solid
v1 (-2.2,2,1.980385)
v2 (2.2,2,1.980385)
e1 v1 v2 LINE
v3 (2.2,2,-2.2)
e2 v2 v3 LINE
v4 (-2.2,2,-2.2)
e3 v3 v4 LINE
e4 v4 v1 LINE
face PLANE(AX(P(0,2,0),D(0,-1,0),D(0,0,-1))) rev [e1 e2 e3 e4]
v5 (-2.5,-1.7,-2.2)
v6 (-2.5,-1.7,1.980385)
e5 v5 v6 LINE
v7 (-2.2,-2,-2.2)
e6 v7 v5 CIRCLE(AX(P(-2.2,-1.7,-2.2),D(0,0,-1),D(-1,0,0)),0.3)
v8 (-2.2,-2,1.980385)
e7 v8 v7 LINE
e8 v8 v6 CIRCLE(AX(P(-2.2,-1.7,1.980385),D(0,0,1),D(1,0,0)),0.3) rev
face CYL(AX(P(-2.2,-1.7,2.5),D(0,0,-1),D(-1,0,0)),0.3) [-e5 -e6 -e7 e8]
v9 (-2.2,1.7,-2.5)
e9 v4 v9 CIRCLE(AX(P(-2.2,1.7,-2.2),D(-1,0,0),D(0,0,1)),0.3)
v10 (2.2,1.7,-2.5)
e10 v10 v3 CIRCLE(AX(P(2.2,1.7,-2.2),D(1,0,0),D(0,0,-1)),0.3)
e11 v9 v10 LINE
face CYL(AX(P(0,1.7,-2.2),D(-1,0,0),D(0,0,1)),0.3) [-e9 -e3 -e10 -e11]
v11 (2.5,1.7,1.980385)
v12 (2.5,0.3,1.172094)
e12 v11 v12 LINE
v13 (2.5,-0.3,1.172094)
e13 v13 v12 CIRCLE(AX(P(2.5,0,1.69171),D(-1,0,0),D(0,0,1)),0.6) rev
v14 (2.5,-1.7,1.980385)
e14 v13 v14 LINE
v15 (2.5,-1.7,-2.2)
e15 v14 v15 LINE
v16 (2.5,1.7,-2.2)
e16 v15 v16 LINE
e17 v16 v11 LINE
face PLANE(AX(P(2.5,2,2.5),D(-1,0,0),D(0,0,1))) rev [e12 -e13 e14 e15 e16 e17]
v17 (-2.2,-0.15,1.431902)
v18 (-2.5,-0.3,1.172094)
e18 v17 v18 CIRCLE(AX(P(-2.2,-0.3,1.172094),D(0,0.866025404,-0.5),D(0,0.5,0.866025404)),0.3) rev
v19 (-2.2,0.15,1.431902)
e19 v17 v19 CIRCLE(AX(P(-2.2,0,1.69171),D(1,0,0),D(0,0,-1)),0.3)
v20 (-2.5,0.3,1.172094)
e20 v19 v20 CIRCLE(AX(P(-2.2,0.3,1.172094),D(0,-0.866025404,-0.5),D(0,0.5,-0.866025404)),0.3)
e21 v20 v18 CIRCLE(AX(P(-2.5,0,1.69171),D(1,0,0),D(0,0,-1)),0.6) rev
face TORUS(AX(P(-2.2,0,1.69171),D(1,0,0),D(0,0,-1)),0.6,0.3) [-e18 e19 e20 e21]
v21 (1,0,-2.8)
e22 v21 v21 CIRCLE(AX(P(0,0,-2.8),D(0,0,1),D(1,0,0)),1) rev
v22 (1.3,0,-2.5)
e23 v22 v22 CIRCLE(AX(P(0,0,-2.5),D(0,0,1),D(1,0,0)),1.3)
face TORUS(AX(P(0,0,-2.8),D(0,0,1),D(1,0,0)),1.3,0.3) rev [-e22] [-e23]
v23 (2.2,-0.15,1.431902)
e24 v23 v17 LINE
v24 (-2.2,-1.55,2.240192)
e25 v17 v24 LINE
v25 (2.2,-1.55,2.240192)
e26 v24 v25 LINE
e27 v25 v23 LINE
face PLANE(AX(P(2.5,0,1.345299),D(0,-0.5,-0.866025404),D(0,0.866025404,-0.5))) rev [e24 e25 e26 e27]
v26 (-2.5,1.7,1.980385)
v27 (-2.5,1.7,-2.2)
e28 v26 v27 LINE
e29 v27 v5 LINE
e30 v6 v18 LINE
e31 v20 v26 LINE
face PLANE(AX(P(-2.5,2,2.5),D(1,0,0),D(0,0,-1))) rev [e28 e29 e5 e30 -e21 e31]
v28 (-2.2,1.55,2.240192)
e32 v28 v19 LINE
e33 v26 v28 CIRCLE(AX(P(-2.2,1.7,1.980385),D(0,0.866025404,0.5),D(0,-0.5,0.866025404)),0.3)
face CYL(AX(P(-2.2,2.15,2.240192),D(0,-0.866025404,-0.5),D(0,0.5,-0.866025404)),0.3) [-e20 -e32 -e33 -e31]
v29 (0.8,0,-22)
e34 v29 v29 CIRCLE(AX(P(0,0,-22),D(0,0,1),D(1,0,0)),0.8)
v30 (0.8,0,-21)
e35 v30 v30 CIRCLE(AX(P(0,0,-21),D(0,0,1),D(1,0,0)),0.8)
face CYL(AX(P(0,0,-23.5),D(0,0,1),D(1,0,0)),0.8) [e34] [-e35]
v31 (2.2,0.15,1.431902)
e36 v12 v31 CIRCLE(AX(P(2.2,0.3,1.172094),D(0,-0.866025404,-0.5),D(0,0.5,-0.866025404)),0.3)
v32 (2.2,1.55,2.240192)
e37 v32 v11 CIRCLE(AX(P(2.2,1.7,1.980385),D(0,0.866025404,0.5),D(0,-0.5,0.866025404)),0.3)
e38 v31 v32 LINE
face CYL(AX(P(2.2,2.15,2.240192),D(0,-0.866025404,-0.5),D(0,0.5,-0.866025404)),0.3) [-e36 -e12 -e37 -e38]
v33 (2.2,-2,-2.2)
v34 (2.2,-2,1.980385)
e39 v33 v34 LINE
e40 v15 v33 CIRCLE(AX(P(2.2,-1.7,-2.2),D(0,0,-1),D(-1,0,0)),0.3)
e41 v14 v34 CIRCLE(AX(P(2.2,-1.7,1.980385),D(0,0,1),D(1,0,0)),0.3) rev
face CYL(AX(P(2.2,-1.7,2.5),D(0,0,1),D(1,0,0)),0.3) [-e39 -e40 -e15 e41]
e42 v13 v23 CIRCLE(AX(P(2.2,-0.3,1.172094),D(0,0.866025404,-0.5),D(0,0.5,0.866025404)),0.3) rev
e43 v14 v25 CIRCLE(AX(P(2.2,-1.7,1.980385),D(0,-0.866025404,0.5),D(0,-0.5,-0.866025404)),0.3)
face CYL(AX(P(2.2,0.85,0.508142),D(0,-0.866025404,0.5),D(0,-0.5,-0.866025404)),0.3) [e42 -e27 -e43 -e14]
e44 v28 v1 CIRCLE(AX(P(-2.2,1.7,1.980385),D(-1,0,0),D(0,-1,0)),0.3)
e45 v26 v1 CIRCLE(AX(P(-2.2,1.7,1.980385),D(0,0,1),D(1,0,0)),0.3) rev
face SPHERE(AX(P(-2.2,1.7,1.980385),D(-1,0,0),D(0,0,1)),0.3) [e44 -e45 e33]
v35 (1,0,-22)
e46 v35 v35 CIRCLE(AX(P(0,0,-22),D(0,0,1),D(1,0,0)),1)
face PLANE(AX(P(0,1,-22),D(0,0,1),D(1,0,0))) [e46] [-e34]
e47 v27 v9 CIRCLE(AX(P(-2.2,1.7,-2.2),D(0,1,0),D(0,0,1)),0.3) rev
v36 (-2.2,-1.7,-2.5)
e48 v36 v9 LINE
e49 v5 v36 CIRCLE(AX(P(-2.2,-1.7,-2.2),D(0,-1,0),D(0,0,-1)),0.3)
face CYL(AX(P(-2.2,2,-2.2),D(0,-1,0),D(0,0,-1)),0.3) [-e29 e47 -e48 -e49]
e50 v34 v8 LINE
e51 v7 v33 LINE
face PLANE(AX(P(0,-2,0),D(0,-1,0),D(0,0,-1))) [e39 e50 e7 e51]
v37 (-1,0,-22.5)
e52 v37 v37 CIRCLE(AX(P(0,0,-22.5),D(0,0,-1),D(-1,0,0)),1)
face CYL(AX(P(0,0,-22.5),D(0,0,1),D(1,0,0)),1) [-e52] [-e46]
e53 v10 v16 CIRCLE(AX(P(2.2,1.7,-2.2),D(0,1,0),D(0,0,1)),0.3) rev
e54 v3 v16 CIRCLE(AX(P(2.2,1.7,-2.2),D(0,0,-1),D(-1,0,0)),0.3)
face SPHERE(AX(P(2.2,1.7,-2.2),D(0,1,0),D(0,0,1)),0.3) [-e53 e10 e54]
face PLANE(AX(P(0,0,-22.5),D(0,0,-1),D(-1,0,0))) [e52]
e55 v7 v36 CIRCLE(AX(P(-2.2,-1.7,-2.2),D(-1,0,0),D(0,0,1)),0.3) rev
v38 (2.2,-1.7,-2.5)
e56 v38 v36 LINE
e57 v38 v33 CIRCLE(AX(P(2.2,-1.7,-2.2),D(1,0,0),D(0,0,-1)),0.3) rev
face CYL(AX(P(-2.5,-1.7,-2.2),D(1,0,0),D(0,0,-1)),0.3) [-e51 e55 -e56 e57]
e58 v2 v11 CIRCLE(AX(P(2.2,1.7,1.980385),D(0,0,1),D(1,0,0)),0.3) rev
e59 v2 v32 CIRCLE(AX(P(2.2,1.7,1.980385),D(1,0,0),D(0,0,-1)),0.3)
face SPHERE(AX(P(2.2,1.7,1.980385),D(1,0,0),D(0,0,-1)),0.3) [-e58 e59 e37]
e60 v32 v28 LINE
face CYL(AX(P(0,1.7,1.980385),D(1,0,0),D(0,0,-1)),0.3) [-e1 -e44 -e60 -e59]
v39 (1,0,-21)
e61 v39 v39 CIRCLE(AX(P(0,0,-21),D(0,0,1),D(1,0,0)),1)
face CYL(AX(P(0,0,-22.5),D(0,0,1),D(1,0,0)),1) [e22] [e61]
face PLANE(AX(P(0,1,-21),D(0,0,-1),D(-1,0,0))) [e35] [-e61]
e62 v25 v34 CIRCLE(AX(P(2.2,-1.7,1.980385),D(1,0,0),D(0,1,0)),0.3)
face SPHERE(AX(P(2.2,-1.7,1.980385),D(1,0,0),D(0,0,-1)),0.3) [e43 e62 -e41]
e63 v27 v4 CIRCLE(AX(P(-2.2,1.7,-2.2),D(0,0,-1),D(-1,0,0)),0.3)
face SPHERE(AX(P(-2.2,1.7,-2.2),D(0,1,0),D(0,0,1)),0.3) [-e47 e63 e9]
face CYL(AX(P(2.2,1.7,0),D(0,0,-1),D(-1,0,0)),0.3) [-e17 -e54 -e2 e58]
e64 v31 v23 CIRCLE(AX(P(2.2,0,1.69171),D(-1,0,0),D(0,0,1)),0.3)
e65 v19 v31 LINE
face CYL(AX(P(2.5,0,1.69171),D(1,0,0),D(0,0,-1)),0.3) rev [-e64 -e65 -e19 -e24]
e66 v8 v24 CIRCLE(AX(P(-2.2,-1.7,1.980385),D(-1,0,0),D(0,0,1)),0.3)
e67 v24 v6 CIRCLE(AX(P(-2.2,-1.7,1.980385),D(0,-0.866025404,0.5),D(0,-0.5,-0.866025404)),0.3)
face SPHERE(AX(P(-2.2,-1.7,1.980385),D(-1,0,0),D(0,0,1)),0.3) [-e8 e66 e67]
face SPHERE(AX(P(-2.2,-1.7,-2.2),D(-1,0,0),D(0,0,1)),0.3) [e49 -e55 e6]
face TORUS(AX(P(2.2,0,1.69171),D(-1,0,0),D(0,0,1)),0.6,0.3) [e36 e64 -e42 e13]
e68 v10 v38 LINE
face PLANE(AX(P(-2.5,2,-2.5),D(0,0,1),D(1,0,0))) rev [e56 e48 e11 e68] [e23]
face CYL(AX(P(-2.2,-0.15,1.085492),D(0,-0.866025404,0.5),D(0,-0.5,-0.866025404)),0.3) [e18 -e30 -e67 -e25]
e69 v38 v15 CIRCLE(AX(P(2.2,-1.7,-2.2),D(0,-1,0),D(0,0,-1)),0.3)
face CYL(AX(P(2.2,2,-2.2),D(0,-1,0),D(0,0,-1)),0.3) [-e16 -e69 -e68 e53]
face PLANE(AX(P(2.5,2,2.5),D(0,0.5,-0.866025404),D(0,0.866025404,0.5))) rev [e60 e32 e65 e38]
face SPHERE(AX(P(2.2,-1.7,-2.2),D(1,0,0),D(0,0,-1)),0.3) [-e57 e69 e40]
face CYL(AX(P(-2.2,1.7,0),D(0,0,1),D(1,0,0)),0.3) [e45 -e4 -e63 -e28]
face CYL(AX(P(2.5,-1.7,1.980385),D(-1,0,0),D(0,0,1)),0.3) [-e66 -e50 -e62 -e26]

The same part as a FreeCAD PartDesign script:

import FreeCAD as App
import Part
import Sketcher
from FreeCAD import Vector
Q = App.Units.Quantity


def edges_at(feature, points):
    """Names of the edges that pass closest to the given points."""
    edges = feature.Shape.Edges
    near = lambda p: min(range(len(edges)), key=lambda i: edges[i].distToShape(Part.Vertex(*p))[0])
    return sorted({f"Edge{near(p) + 1}" for p in points})


def add_polygon(sketch, points):
    """Adds a closed chain of lines whose ends are joined by coincident constraints."""
    first, n = sketch.GeometryCount, len(points)
    for a, b in zip(points, points[1:] + points[:1]):
        sketch.addGeometry(Part.LineSegment(App.Vector(*a, 0), App.Vector(*b, 0)), False)
    for i in range(n):
        sketch.addConstraint(Sketcher.Constraint("Coincident", first + i, 2, first + (i + 1) % n, 1))

doc = App.newDocument("Part")
body = doc.addObject("PartDesign::Body", "Body")

# Sketch on XZ plane
sketch1 = body.newObject("Sketcher::SketchObject", "Sketch")
sketch1.AttachmentSupport = (doc.getObject("XZ_Plane"), [""])
sketch1.MapMode = "FlatFace"
add_polygon(sketch1, [(-2, -2), (-2, 2), (2, 2), (2, -2)])  # lines 0-3
sketch1.addConstraint([
    Sketcher.Constraint("Vertical", 0),
    Sketcher.Constraint("Horizontal", 1),
    Sketcher.Constraint("Vertical", 2),
    Sketcher.Constraint("Horizontal", 3),
    Sketcher.Constraint("Symmetric", 0, 2, 2, 2, -1, 1),
    Sketcher.Constraint("Equal", 3, 0),
    Sketcher.Constraint("DistanceX", 1, 1, 1, 2, Q("5 mm")),
])
pad1 = body.newObject("PartDesign::Pad", "Pad")
pad1.Profile = sketch1
pad1.Length = 4
pad1.Midplane = True

# Sketch on YZ plane
sketch2 = body.newObject("Sketcher::SketchObject", "Sketch001")
sketch2.AttachmentSupport = (doc.getObject("YZ_Plane"), [""])
sketch2.MapMode = "FlatFace"
sketch2.AttachmentOffset = App.Placement(Vector(0, 0, -2.5), App.Rotation())
add_polygon(sketch2, [(2, 2.5), (0, 1.3), (-2, 2.5)])  # lines 0-2
sketch2.addConstraint([
    Sketcher.Constraint("Horizontal", 2),
    Sketcher.Constraint("PointOnObject", 0, 2, -2),
    Sketcher.Constraint("Equal", 0, 1),
    Sketcher.Constraint("DistanceX", 2, 1, 2, 2, Q("4 mm")),
    Sketcher.Constraint("Angle", 0, Q("-150 deg")),
    Sketcher.Constraint("DistanceY", -1, 1, 1, 2, Q("2.5 mm")),
])
pocket1 = body.newObject("PartDesign::Pocket", "Pocket")
pocket1.Profile = sketch2
pocket1.Type = "ThroughAll"
pocket1.Reversed = True

# Sketch on XY plane
sketch3 = body.newObject("Sketcher::SketchObject", "Sketch002")
sketch3.AttachmentSupport = (doc.getObject("XY_Plane"), [""])
sketch3.MapMode = "FlatFace"
sketch3.AttachmentOffset = App.Placement(Vector(0, 0, -2.5), App.Rotation())
sketch3.addGeometry(Part.Circle(Vector(0, 0, 0), Vector(0, 0, 1), 1), False)
sketch3.addConstraint([
    Sketcher.Constraint("Coincident", 0, 3, -1, 1),
    Sketcher.Constraint("Diameter", 0, Q("2 mm")),
])
pad2 = body.newObject("PartDesign::Pad", "Pad001")
pad2.Profile = sketch3
pad2.Length = 20
pad2.Reversed = True

# Sketch on YZ plane
sketch4 = body.newObject("Sketcher::SketchObject", "Sketch003")
sketch4.AttachmentSupport = (doc.getObject("YZ_Plane"), [""])
sketch4.MapMode = "FlatFace"
add_polygon(sketch4, [(1, -21), (0.8, -21), (0.8, -22), (1, -22)])  # lines 0-3
sketch4.addConstraint([
    Sketcher.Constraint("Horizontal", 0),
    Sketcher.Constraint("Vertical", 1),
    Sketcher.Constraint("Horizontal", 2),
    Sketcher.Constraint("Vertical", 3),
    Sketcher.Constraint("DistanceY", 1, 2, 1, 1, Q("1 mm")),
    Sketcher.Constraint("DistanceX", 0, 2, 0, 1, Q("0.2 mm")),
    Sketcher.Constraint("DistanceY", 0, 2, -1, 1, Q("21 mm")),
    Sketcher.Constraint("DistanceX", -1, 1, 2, 2, Q("1 mm")),
])
groove = body.newObject("PartDesign::Groove", "Groove")
groove.Profile = sketch4
groove.ReferenceAxis = (sketch4, ["V_Axis"])
groove.Angle = 360
doc.recompute()

fillet = body.newObject("PartDesign::Fillet", "Fillet")
fillet.Base = (groove, edges_at(groove, [
    (-2.5, 2, 0),
    (0, 2, 2.5),
    (2.5, -1, 1.923),
    (2.5, 1, 1.923),
    (0, 0, 1.345),
    (-2.5, 1, 1.923),
    (-2.5, -1, 1.923),
    (1, 0, -2.5),
    (2.5, 2, 0),
    (0, -2, 2.5),
    (-2.5, -2, 0),
    (0, -2, -2.5),
    (2.5, -2, 0),
    (-2.5, 0, -2.5),
    (2.5, 0, -2.5),
    (0, 2, -2.5),
]))
fillet.Radius = 0.3

doc.recompute()
